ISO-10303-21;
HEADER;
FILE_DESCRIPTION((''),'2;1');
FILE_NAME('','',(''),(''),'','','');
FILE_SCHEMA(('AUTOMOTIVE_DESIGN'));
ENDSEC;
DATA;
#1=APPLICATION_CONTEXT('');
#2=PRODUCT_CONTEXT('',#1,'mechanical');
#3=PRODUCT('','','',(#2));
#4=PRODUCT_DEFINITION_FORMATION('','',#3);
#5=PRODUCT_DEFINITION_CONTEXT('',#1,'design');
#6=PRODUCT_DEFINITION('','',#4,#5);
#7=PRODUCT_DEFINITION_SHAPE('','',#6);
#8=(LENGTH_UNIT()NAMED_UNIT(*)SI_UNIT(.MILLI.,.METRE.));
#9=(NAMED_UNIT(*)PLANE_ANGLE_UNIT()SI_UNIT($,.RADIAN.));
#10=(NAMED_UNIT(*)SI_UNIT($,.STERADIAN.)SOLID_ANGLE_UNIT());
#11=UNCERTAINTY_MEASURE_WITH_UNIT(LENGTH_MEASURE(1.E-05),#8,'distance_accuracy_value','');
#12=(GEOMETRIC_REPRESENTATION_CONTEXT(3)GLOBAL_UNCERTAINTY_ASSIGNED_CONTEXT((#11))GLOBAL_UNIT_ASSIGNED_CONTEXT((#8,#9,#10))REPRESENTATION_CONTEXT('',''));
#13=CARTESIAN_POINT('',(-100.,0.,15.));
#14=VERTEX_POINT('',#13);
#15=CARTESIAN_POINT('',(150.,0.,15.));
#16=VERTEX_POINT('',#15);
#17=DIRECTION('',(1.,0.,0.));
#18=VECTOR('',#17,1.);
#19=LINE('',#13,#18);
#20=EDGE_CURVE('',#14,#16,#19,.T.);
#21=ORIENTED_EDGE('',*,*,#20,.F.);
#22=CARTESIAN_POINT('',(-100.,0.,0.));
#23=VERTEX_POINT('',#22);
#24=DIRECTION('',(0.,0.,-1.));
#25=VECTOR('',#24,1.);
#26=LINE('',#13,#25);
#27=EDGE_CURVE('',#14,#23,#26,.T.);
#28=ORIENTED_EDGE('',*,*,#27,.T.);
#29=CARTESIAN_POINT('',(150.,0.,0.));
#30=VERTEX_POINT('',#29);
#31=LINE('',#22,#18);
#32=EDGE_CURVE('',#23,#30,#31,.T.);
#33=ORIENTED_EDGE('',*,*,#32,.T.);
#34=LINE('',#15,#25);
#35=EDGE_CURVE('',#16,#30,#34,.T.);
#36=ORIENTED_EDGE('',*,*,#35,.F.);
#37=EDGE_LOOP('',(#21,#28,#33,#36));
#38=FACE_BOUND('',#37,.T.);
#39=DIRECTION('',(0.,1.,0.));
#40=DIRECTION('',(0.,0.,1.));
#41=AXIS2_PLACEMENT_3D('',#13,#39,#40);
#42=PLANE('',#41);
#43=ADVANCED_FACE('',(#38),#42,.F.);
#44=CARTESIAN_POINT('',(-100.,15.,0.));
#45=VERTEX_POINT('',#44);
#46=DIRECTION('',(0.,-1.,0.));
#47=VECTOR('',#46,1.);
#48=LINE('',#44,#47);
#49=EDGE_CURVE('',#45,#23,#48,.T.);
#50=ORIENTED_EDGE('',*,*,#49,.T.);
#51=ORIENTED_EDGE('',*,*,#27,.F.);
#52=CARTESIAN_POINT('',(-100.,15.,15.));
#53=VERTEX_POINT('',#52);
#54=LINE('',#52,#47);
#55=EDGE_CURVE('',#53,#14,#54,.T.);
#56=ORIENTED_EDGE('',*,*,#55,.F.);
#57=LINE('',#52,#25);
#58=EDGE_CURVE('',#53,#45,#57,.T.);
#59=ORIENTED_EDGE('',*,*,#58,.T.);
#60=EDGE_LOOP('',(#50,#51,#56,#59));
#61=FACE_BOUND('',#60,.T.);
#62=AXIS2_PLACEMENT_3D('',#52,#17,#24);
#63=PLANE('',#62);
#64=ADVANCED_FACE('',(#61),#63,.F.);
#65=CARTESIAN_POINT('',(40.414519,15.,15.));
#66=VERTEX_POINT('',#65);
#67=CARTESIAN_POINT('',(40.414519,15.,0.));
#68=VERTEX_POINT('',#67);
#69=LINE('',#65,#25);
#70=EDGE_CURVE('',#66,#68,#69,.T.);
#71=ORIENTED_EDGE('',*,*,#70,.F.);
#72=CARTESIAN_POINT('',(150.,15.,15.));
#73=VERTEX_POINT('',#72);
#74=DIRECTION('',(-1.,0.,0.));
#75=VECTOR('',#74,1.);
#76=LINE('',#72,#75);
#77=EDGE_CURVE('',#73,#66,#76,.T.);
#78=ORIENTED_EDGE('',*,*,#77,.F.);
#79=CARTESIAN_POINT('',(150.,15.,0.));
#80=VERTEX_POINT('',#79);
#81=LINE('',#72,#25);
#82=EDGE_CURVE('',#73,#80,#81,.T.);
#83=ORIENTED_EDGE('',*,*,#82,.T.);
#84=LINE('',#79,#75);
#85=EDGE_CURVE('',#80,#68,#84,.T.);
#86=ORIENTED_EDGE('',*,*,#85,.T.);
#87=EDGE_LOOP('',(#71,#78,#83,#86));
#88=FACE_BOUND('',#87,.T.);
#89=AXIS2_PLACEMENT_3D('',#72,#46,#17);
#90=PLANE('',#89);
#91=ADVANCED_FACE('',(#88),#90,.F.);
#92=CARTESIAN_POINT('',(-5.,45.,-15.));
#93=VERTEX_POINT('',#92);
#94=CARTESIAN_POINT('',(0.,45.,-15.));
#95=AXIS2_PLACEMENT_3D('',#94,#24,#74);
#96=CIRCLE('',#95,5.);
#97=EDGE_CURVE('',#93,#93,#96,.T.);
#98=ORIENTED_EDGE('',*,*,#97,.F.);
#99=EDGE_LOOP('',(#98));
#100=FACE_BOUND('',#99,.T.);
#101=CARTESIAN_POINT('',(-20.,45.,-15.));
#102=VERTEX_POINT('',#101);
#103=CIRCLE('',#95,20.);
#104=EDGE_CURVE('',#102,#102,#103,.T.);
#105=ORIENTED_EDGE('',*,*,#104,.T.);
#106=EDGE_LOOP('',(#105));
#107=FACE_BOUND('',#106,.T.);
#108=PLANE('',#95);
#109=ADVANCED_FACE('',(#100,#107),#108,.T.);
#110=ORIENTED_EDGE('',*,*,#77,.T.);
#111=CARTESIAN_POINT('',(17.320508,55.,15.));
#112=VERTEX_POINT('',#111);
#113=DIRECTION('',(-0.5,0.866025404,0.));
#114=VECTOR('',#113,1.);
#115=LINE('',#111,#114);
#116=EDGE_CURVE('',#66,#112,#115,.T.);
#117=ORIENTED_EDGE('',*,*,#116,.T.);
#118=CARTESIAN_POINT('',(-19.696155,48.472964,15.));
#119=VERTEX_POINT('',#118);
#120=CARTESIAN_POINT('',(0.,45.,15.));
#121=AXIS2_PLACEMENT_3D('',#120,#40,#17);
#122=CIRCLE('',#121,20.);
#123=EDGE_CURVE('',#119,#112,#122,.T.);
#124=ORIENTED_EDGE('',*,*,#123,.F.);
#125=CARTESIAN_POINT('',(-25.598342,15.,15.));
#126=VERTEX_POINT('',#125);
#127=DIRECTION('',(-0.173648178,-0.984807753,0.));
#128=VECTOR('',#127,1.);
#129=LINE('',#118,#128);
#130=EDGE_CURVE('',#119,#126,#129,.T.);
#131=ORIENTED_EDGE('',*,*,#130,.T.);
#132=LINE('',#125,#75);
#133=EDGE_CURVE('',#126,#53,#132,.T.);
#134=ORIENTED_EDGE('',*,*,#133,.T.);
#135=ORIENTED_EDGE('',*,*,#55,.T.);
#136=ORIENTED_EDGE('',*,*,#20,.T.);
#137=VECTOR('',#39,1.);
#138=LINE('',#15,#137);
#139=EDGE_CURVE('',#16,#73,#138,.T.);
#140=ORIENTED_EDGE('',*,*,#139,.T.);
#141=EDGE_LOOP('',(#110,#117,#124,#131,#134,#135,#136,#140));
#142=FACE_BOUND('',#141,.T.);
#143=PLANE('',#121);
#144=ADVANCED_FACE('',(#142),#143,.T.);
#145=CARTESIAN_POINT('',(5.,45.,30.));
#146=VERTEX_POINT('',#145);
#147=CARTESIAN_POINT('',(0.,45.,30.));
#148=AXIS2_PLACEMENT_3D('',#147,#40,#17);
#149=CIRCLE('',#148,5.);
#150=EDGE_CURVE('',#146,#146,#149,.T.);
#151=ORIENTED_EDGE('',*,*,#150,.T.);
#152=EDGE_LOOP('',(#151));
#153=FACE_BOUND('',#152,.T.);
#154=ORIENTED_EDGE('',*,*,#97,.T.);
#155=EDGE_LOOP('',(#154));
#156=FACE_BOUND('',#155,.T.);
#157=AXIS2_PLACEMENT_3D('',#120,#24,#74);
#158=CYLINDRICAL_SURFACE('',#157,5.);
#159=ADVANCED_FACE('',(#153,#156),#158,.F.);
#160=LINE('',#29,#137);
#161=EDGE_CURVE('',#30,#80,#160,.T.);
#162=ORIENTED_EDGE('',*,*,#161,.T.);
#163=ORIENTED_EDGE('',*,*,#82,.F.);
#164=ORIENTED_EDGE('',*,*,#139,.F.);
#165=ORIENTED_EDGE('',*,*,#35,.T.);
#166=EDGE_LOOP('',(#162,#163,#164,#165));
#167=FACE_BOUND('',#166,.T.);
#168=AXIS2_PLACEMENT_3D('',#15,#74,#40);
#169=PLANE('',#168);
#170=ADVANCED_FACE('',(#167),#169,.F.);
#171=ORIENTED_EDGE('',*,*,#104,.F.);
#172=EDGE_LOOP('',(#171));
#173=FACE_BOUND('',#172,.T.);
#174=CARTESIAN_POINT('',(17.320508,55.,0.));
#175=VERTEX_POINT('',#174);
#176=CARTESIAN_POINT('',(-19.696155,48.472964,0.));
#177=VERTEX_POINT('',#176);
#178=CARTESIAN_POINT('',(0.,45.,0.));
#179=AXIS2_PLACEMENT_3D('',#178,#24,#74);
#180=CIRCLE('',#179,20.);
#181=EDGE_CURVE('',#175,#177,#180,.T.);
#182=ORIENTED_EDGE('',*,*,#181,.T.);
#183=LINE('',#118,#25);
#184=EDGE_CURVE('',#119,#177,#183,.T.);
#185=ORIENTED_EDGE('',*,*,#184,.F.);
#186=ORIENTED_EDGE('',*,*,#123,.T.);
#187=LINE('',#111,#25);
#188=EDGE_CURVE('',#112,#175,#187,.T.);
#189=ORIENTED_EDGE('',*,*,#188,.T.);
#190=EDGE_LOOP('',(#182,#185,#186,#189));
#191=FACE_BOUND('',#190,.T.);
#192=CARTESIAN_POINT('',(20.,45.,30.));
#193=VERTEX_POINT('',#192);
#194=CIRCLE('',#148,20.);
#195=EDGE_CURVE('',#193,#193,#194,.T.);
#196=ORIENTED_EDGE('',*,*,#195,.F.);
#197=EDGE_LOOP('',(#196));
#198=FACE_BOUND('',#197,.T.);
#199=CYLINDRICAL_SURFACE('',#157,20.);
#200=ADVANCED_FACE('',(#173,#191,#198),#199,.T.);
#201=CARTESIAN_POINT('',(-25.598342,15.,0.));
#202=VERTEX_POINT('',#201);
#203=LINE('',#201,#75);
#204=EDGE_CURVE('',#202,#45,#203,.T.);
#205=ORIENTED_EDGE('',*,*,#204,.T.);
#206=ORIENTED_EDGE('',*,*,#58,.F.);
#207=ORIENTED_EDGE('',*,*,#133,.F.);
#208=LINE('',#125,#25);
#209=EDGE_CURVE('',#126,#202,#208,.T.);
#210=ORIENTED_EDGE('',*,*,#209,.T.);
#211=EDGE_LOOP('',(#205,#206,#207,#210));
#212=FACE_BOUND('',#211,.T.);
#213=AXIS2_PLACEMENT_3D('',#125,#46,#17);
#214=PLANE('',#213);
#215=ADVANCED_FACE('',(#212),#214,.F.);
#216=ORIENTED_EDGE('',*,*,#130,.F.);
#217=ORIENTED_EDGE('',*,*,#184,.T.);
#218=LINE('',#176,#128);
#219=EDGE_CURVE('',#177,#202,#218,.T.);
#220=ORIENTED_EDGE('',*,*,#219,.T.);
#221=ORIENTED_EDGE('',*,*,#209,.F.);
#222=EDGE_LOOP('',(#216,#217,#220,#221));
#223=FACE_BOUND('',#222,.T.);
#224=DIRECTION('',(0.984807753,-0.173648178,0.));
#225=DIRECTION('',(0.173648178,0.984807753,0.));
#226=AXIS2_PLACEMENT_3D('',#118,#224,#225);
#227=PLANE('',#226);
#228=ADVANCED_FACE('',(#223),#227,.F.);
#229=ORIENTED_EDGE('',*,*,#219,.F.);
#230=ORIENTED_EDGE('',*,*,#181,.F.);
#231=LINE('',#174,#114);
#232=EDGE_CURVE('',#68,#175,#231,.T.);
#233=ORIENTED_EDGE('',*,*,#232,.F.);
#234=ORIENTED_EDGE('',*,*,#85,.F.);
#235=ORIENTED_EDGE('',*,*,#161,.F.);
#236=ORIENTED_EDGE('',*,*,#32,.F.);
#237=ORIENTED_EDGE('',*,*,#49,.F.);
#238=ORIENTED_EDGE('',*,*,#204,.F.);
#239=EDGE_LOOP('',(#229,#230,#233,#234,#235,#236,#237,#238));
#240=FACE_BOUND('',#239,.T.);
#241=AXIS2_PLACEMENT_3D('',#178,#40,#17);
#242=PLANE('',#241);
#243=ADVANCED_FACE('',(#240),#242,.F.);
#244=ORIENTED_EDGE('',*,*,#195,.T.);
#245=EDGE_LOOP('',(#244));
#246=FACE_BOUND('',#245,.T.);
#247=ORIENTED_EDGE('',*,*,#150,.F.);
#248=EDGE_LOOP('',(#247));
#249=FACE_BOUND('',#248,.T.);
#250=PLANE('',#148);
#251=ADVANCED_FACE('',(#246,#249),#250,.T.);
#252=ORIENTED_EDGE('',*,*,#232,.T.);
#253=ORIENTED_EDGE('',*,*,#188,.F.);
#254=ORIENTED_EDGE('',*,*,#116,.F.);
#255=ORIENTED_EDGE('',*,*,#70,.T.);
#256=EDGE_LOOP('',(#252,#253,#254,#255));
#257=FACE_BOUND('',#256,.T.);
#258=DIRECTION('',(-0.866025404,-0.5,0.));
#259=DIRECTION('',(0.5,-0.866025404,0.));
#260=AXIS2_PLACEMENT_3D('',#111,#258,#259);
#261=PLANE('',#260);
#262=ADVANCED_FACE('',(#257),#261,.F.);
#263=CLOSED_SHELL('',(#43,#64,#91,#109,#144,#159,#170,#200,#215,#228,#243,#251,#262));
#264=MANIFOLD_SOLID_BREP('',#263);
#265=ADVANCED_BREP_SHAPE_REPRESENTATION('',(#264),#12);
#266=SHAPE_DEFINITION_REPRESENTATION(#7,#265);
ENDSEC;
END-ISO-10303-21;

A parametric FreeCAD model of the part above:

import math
import FreeCAD as App
import Part
import Sketcher

V = App.Vector
Q = App.Units.Quantity

doc = App.newDocument("Part")
body = doc.addObject("PartDesign::Body", "Body")

sketch1 = body.newObject("Sketcher::SketchObject", "Sketch")
sketch1.AttachmentSupport = (doc.getObject("XY_Plane"), [""])
sketch1.MapMode = "FlatFace"
sketch1.addGeometry(Part.LineSegment(V(-100, 0, 0), V(150, 0, 0)), False)
sketch1.addGeometry(Part.LineSegment(V(150, 0, 0), V(150, 15, 0)), False)
sketch1.addGeometry(Part.LineSegment(V(150, 15, 0), V(40.414519, 15, 0)), False)
sketch1.addGeometry(Part.LineSegment(V(40.414519, 15, 0), V(17.320508, 55, 0)), False)
sketch1.addGeometry(Part.ArcOfCircle(Part.Circle(V(0, 45, 0), V(0, 0, 1), 20), math.radians(30), math.radians(170)), False)
sketch1.addGeometry(Part.LineSegment(V(-19.696155, 48.472964, 0), V(-25.598342, 15, 0)), False)
sketch1.addGeometry(Part.LineSegment(V(-25.598342, 15, 0), V(-100, 15, 0)), False)
sketch1.addGeometry(Part.LineSegment(V(-100, 15, 0), V(-100, 0, 0)), False)
sketch1.addGeometry(Part.Circle(V(0, 45, 0), V(0, 0, 1), 5), False)
sketch1.addConstraint(Sketcher.Constraint("Coincident", 0, 2, 1, 1))
sketch1.addConstraint(Sketcher.Constraint("Coincident", 1, 2, 2, 1))
sketch1.addConstraint(Sketcher.Constraint("Coincident", 2, 2, 3, 1))
sketch1.addConstraint(Sketcher.Constraint("Tangent", 3, 2, 4, 1))
sketch1.addConstraint(Sketcher.Constraint("Tangent", 4, 2, 5, 1))
sketch1.addConstraint(Sketcher.Constraint("Coincident", 5, 2, 6, 1))
sketch1.addConstraint(Sketcher.Constraint("Coincident", 6, 2, 7, 1))
sketch1.addConstraint(Sketcher.Constraint("Coincident", 7, 2, 0, 1))
sketch1.addConstraint(Sketcher.Constraint("Horizontal", 0))
sketch1.addConstraint(Sketcher.Constraint("Vertical", 1))
sketch1.addConstraint(Sketcher.Constraint("Horizontal", 2))
sketch1.addConstraint(Sketcher.Constraint("Horizontal", 6))
sketch1.addConstraint(Sketcher.Constraint("Vertical", 7))
sketch1.addConstraint(Sketcher.Constraint("Coincident", 8, 3, 4, 3))
sketch1.addConstraint(Sketcher.Constraint("PointOnObject", 4, 3, -2))
sketch1.addConstraint(Sketcher.Constraint("PointOnObject", 0, 2, -1))
sketch1.addConstraint(Sketcher.Constraint("Horizontal", 2, 2, 5, 2))
sketch1.addConstraint(Sketcher.Constraint("Diameter", 8, 10.0))
sketch1.addConstraint(Sketcher.Constraint("Radius", 4, 20.0))
sketch1.addConstraint(Sketcher.Constraint("DistanceX", 0, 1, 0, 2, 250.0))
sketch1.addConstraint(Sketcher.Constraint("DistanceY", 1, 1, 1, 2, 15.0))
sketch1.addConstraint(Sketcher.Constraint("Angle", 3, Q("120 deg")))
sketch1.addConstraint(Sketcher.Constraint("Angle", 5, Q("-100 deg")))
sketch1.addConstraint(Sketcher.Constraint("DistanceY", -1, 1, 4, 3, 45.0))
sketch1.addConstraint(Sketcher.Constraint("DistanceX", -1, 1, 0, 2, 150.0))
pad1 = body.newObject("PartDesign::Pad", "Pad")
pad1.Profile = sketch1
pad1.Length = 15

sketch2 = body.newObject("Sketcher::SketchObject", "Sketch001")
sketch2.AttachmentSupport = (doc.getObject("XY_Plane"), [""])
sketch2.MapMode = "FlatFace"
sketch2.AttachmentOffset = App.Placement(V(0, 0, 15), App.Rotation())
sketch2.addGeometry(Part.Circle(V(0, 45, 0), V(0, 0, 1), 20), False)
sketch2.addGeometry(Part.Circle(V(0, 45, 0), V(0, 0, 1), 5), False)
sketch2.addConstraint(Sketcher.Constraint("Coincident", 1, 3, 0, 3))
sketch2.addConstraint(Sketcher.Constraint("PointOnObject", 0, 3, -2))
sketch2.addConstraint(Sketcher.Constraint("Diameter", 0, 40.0))
sketch2.addConstraint(Sketcher.Constraint("Diameter", 1, 10.0))
sketch2.addConstraint(Sketcher.Constraint("DistanceY", -1, 1, 0, 3, 45.0))
pad2 = body.newObject("PartDesign::Pad", "Pad001")
pad2.Profile = sketch2
pad2.Length = 15

sketch3 = body.newObject("Sketcher::SketchObject", "Sketch002")
sketch3.AttachmentSupport = (doc.getObject("XY_Plane"), [""])
sketch3.MapMode = "FlatFace"
sketch3.AttachmentOffset = App.Placement(V(0, 0, -15), App.Rotation())
sketch3.addGeometry(Part.Circle(V(0, 45, 0), V(0, 0, 1), 20), False)
sketch3.addGeometry(Part.Circle(V(0, 45, 0), V(0, 0, 1), 5), False)
sketch3.addConstraint(Sketcher.Constraint("Coincident", 1, 3, 0, 3))
sketch3.addConstraint(Sketcher.Constraint("PointOnObject", 0, 3, -2))
sketch3.addConstraint(Sketcher.Constraint("Diameter", 0, 40.0))
sketch3.addConstraint(Sketcher.Constraint("Diameter", 1, 10.0))
sketch3.addConstraint(Sketcher.Constraint("DistanceY", -1, 1, 0, 3, 45.0))
pad3 = body.newObject("PartDesign::Pad", "Pad002")
pad3.Profile = sketch3
pad3.Length = 15

doc.recompute()
